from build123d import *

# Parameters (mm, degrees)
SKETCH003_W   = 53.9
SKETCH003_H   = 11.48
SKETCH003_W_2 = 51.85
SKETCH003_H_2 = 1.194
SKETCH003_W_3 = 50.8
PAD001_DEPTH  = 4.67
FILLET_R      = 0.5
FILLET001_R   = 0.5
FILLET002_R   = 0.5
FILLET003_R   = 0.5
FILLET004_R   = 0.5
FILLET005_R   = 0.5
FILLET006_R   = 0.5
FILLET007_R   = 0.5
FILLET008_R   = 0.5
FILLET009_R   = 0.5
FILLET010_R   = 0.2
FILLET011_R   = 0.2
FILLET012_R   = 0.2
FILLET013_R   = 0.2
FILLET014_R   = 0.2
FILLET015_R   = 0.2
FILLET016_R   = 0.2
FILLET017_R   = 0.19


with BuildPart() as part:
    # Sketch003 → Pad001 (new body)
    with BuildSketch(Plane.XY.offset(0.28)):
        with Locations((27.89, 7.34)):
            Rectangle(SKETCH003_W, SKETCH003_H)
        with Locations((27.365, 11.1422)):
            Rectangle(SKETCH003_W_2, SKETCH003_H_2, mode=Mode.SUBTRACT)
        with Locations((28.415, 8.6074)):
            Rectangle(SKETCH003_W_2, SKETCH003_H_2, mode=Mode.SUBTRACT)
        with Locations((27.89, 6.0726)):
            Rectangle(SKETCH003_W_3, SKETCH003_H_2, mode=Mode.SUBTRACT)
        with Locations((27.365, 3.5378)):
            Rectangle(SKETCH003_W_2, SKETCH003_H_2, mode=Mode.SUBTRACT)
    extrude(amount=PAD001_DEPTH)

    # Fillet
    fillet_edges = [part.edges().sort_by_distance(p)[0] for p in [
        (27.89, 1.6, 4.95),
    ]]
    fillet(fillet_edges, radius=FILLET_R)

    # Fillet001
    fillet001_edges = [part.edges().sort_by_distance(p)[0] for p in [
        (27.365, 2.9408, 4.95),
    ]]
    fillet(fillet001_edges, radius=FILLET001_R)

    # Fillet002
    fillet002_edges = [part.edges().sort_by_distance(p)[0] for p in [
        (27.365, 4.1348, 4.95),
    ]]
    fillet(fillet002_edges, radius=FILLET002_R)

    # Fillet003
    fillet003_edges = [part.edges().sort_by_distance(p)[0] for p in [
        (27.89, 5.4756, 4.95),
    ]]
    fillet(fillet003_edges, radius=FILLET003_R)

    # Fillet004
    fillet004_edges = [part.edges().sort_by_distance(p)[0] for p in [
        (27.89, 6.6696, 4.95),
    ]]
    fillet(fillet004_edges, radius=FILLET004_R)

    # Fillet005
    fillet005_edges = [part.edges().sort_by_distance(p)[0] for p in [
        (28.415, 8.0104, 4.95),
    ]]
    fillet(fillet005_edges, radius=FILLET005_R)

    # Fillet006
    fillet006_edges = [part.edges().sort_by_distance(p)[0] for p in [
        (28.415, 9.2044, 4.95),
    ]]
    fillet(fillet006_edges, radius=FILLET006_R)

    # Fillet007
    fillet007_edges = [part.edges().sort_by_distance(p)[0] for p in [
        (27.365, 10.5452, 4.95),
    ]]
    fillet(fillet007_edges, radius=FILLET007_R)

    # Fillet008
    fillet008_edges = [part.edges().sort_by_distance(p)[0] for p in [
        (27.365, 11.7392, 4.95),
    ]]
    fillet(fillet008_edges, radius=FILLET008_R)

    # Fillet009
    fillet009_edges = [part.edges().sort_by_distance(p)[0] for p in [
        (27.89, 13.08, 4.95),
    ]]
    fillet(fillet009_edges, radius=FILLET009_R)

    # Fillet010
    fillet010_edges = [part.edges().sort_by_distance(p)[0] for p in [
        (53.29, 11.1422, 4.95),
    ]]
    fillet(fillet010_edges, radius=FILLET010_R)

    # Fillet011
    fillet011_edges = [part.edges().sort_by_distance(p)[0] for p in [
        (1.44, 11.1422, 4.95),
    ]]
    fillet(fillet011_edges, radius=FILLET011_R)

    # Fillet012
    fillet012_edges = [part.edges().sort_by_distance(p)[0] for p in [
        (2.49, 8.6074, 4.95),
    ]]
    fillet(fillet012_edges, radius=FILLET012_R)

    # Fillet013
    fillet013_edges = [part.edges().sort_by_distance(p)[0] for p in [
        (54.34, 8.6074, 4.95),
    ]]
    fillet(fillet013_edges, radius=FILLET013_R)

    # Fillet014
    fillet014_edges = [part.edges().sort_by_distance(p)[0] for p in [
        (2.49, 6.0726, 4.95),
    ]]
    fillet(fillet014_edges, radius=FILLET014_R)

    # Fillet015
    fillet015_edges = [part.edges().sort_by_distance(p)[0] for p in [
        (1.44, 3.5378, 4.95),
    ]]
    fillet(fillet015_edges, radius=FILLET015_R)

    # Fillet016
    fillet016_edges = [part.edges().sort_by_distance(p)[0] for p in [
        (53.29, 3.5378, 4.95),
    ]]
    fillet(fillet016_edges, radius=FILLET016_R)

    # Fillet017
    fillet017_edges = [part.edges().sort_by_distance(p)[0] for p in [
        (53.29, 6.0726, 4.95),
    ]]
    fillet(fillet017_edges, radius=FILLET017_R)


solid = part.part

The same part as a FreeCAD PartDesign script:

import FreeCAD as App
import Part
import Sketcher
Q = App.Units.Quantity


def edges_at(feature, points):
    """Names of the edges that pass closest to the given points."""
    edges = feature.Shape.Edges
    near = lambda p: min(range(len(edges)), key=lambda i: edges[i].distToShape(Part.Vertex(*p))[0])
    return sorted({f"Edge{near(p) + 1}" for p in points})


def add_polygon(sketch, points):
    """Adds a closed chain of lines whose ends are joined by coincident constraints."""
    first, n = sketch.GeometryCount, len(points)
    for a, b in zip(points, points[1:] + points[:1]):
        sketch.addGeometry(Part.LineSegment(App.Vector(*a, 0), App.Vector(*b, 0)), False)
    for i in range(n):
        sketch.addConstraint(Sketcher.Constraint("Coincident", first + i, 2, first + (i + 1) % n, 1))

doc = App.newDocument("Part")
body = doc.addObject("PartDesign::Body", "Body")

# Sketch on XY plane
sketch1 = body.newObject("Sketcher::SketchObject", "Sketch")
sketch1.AttachmentSupport = (doc.getObject("XY_Plane"), [""])
sketch1.MapMode = "FlatFace"
sketch1.AttachmentOffset = App.Placement(App.Vector(0, 0, 0.28), App.Rotation())
add_polygon(sketch1, [(0.9, 13.1), (0.9, 1.6), (54.8, 1.6), (54.8, 13.1)])  # lines 0-3
add_polygon(sketch1, [(53.3, 2.9), (1.4, 2.9), (1.4, 4.1), (53.3, 4.1)])  # lines 4-7
add_polygon(sketch1, [(53.3, 5.5), (2.5, 5.5), (2.5, 6.7), (53.3, 6.7)])  # lines 8-11
add_polygon(sketch1, [(53.3, 10.5), (1.4, 10.5), (1.4, 11.7), (53.3, 11.7)])  # lines 12-15
add_polygon(sketch1, [(54.3, 8), (2.5, 8), (2.5, 9.2), (54.3, 9.2)])  # lines 16-19
sketch1.addConstraint([
    Sketcher.Constraint("Vertical", 0),
    Sketcher.Constraint("Horizontal", 1),
    Sketcher.Constraint("Vertical", 2),
    Sketcher.Constraint("Horizontal", 3),
    Sketcher.Constraint("Horizontal", 4),
    Sketcher.Constraint("Vertical", 5),
    Sketcher.Constraint("Horizontal", 6),
    Sketcher.Constraint("Vertical", 7),
    Sketcher.Constraint("Horizontal", 8),
    Sketcher.Constraint("Vertical", 9),
    Sketcher.Constraint("Horizontal", 10),
    Sketcher.Constraint("Vertical", 11),
    Sketcher.Constraint("Horizontal", 12),
    Sketcher.Constraint("Vertical", 13),
    Sketcher.Constraint("Horizontal", 14),
    Sketcher.Constraint("Vertical", 15),
    Sketcher.Constraint("Horizontal", 16),
    Sketcher.Constraint("Vertical", 17),
    Sketcher.Constraint("Horizontal", 18),
    Sketcher.Constraint("Vertical", 19),
    Sketcher.Constraint("Vertical", 7, 2, 10, 2),
    Sketcher.Constraint("Vertical", 5, 2, 12, 2),
    Sketcher.Constraint("Vertical", 11, 2, 14, 2),
    Sketcher.Constraint("Vertical", 9, 2, 16, 2),
    Sketcher.Constraint("Equal", 14, 16),
    Sketcher.Constraint("Equal", 7, 9),
    Sketcher.Constraint("Equal", 11, 13),
    Sketcher.Constraint("Equal", 15, 17),
    Sketcher.Constraint("DistanceX", 1, 1, 1, 2, Q("53.9 mm")),
    Sketcher.Constraint("DistanceX", 8, 2, 8, 1, Q("50.8 mm")),
    Sketcher.Constraint("DistanceX", 4, 2, 4, 1, Q("51.85 mm")),
    Sketcher.Constraint("DistanceY", 0, 2, 0, 1, Q("11.48 mm")),
    Sketcher.Constraint("DistanceY", -1, 1, 0, 2, Q("1.6 mm")),
    Sketcher.Constraint("DistanceX", 0, 2, 4, 2, Q("0.5 mm")),
    Sketcher.Constraint("DistanceY", 5, 1, 5, 2, Q("1.194 mm")),
    Sketcher.Constraint("DistanceX", -1, 1, 0, 2, Q("0.94 mm")),
    Sketcher.Constraint("DistanceY", -1, 1, 4, 2, Q("2.9408 mm")),
    Sketcher.Constraint("DistanceY", -1, 1, 8, 2, Q("5.4756 mm")),
    Sketcher.Constraint("DistanceY", -1, 1, 12, 2, Q("10.5452 mm")),
    Sketcher.Constraint("DistanceY", -1, 1, 16, 2, Q("8.0104 mm")),
])
pad1 = body.newObject("PartDesign::Pad", "Pad")
pad1.Profile = sketch1
pad1.Length = 4.67
doc.recompute()

fillet = body.newObject("PartDesign::Fillet", "Fillet")
fillet.Base = (pad1, edges_at(pad1, [(27.89, 1.6, 4.95)]))
fillet.Radius = 0.5
doc.recompute()

fillet2 = body.newObject("PartDesign::Fillet", "Fillet001")
fillet2.Base = (fillet, edges_at(fillet, [(27.365, 2.941, 4.95)]))
fillet2.Radius = 0.5
doc.recompute()

fillet3 = body.newObject("PartDesign::Fillet", "Fillet002")
fillet3.Base = (fillet2, edges_at(fillet2, [(27.365, 4.135, 4.95)]))
fillet3.Radius = 0.5
doc.recompute()

fillet4 = body.newObject("PartDesign::Fillet", "Fillet003")
fillet4.Base = (fillet3, edges_at(fillet3, [(27.89, 5.476, 4.95)]))
fillet4.Radius = 0.5
doc.recompute()

fillet5 = body.newObject("PartDesign::Fillet", "Fillet004")
fillet5.Base = (fillet4, edges_at(fillet4, [(27.89, 6.67, 4.95)]))
fillet5.Radius = 0.5
doc.recompute()

fillet6 = body.newObject("PartDesign::Fillet", "Fillet005")
fillet6.Base = (fillet5, edges_at(fillet5, [(28.415, 8.01, 4.95)]))
fillet6.Radius = 0.5
doc.recompute()

fillet7 = body.newObject("PartDesign::Fillet", "Fillet006")
fillet7.Base = (fillet6, edges_at(fillet6, [(28.415, 9.204, 4.95)]))
fillet7.Radius = 0.5
doc.recompute()

fillet8 = body.newObject("PartDesign::Fillet", "Fillet007")
fillet8.Base = (fillet7, edges_at(fillet7, [(27.365, 10.545, 4.95)]))
fillet8.Radius = 0.5
doc.recompute()

fillet9 = body.newObject("PartDesign::Fillet", "Fillet008")
fillet9.Base = (fillet8, edges_at(fillet8, [(27.365, 11.739, 4.95)]))
fillet9.Radius = 0.5
doc.recompute()

fillet10 = body.newObject("PartDesign::Fillet", "Fillet009")
fillet10.Base = (fillet9, edges_at(fillet9, [(27.89, 13.08, 4.95)]))
fillet10.Radius = 0.5
doc.recompute()

fillet11 = body.newObject("PartDesign::Fillet", "Fillet010")
fillet11.Base = (fillet10, edges_at(fillet10, [(53.29, 11.142, 4.95)]))
fillet11.Radius = 0.2
doc.recompute()

fillet12 = body.newObject("PartDesign::Fillet", "Fillet011")
fillet12.Base = (fillet11, edges_at(fillet11, [(1.44, 11.142, 4.95)]))
fillet12.Radius = 0.2
doc.recompute()

fillet13 = body.newObject("PartDesign::Fillet", "Fillet012")
fillet13.Base = (fillet12, edges_at(fillet12, [(2.49, 8.607, 4.95)]))
fillet13.Radius = 0.2
doc.recompute()

fillet14 = body.newObject("PartDesign::Fillet", "Fillet013")
fillet14.Base = (fillet13, edges_at(fillet13, [(54.34, 8.607, 4.95)]))
fillet14.Radius = 0.2
doc.recompute()

fillet15 = body.newObject("PartDesign::Fillet", "Fillet014")
fillet15.Base = (fillet14, edges_at(fillet14, [(2.49, 6.073, 4.95)]))
fillet15.Radius = 0.2
doc.recompute()

fillet16 = body.newObject("PartDesign::Fillet", "Fillet015")
fillet16.Base = (fillet15, edges_at(fillet15, [(1.44, 3.538, 4.95)]))
fillet16.Radius = 0.2
doc.recompute()

fillet17 = body.newObject("PartDesign::Fillet", "Fillet016")
fillet17.Base = (fillet16, edges_at(fillet16, [(53.29, 3.538, 4.95)]))
fillet17.Radius = 0.2
doc.recompute()

fillet18 = body.newObject("PartDesign::Fillet", "Fillet017")
fillet18.Base = (fillet17, edges_at(fillet17, [(53.29, 6.073, 4.95)]))
fillet18.Radius = 0.19

doc.recompute()
